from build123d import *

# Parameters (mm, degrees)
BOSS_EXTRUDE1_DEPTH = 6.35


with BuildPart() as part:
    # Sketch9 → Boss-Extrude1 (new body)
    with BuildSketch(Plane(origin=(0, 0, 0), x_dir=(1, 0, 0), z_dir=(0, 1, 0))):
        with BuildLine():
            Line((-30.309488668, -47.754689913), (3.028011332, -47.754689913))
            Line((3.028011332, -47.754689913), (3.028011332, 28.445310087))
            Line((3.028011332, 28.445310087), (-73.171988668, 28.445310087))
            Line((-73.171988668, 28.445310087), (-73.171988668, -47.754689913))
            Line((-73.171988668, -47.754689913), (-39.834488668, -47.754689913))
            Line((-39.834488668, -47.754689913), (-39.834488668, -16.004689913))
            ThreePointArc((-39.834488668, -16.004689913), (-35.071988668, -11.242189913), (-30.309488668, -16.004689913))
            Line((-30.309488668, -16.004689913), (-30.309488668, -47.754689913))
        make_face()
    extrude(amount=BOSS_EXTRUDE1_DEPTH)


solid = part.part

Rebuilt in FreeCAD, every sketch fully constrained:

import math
import FreeCAD as App
import Part
import Sketcher
from FreeCAD import Vector
Q = App.Units.Quantity

doc = App.newDocument("Part")
body = doc.addObject("PartDesign::Body", "Body")

sketch1 = body.newObject("Sketcher::SketchObject", "Sketch")
sketch1.AttachmentSupport = (doc.getObject("XZ_Plane"), [""])
sketch1.MapMode = "FlatFace"
sketch1.addGeometry(Part.LineSegment(Vector(-30.309489, 47.75469, 0), Vector(3.028011, 47.75469, 0)), False)
sketch1.addGeometry(Part.LineSegment(Vector(3.028011, 47.75469, 0), Vector(3.028011, -28.44531, 0)), False)
sketch1.addGeometry(Part.LineSegment(Vector(3.028011, -28.44531, 0), Vector(-73.171989, -28.44531, 0)), False)
sketch1.addGeometry(Part.LineSegment(Vector(-73.171989, -28.44531, 0), Vector(-73.171989, 47.75469, 0)), False)
sketch1.addGeometry(Part.LineSegment(Vector(-73.171989, 47.75469, 0), Vector(-39.834489, 47.75469, 0)), False)
sketch1.addGeometry(Part.LineSegment(Vector(-39.834489, 47.75469, 0), Vector(-39.834489, 16.00469, 0)), False)
sketch1.addGeometry(Part.ArcOfCircle(Part.Circle(Vector(-35.071989, 16.00469, 0), Vector(0, 0, 1), 4.7625), math.radians(180), math.radians(360)), False)
sketch1.addGeometry(Part.LineSegment(Vector(-30.309489, 16.00469, 0), Vector(-30.309489, 47.75469, 0)), False)
sketch1.addConstraint(Sketcher.Constraint("Coincident", 0, 2, 1, 1))
sketch1.addConstraint(Sketcher.Constraint("Coincident", 1, 2, 2, 1))
sketch1.addConstraint(Sketcher.Constraint("Coincident", 2, 2, 3, 1))
sketch1.addConstraint(Sketcher.Constraint("Coincident", 3, 2, 4, 1))
sketch1.addConstraint(Sketcher.Constraint("Coincident", 4, 2, 5, 1))
sketch1.addConstraint(Sketcher.Constraint("Tangent", 5, 2, 6, 1))
sketch1.addConstraint(Sketcher.Constraint("Tangent", 6, 2, 7, 1))
sketch1.addConstraint(Sketcher.Constraint("Coincident", 7, 2, 0, 1))
sketch1.addConstraint(Sketcher.Constraint("Horizontal", 0))
sketch1.addConstraint(Sketcher.Constraint("Vertical", 1))
sketch1.addConstraint(Sketcher.Constraint("Horizontal", 2))
sketch1.addConstraint(Sketcher.Constraint("Vertical", 3))
sketch1.addConstraint(Sketcher.Constraint("Horizontal", 4))
sketch1.addConstraint(Sketcher.Constraint("Vertical", 5))
sketch1.addConstraint(Sketcher.Constraint("Vertical", 7))
sketch1.addConstraint(Sketcher.Constraint("Horizontal", 0, 2, 3, 2))
sketch1.addConstraint(Sketcher.Constraint("Equal", 0, 4))
sketch1.addConstraint(Sketcher.Constraint("Equal", 2, 1))
sketch1.addConstraint(Sketcher.Constraint("DistanceX", 2, 2, 2, 1, Q("3 in")))
sketch1.addConstraint(Sketcher.Constraint("Radius", 6, Q("0.1875 in")))
sketch1.addConstraint(Sketcher.Constraint("DistanceY", 5, 2, 5, 1, Q("1.25 in")))
sketch1.addConstraint(Sketcher.Constraint("DistanceX", 6, 3, -1, 1, 35.071989))
sketch1.addConstraint(Sketcher.Constraint("DistanceY", -1, 1, 6, 3, 16.00469))
pad1 = body.newObject("PartDesign::Pad", "Pad")
pad1.Profile = sketch1
pad1.Length = Q("0.25 in")
pad1.Reversed = True

doc.recompute()
